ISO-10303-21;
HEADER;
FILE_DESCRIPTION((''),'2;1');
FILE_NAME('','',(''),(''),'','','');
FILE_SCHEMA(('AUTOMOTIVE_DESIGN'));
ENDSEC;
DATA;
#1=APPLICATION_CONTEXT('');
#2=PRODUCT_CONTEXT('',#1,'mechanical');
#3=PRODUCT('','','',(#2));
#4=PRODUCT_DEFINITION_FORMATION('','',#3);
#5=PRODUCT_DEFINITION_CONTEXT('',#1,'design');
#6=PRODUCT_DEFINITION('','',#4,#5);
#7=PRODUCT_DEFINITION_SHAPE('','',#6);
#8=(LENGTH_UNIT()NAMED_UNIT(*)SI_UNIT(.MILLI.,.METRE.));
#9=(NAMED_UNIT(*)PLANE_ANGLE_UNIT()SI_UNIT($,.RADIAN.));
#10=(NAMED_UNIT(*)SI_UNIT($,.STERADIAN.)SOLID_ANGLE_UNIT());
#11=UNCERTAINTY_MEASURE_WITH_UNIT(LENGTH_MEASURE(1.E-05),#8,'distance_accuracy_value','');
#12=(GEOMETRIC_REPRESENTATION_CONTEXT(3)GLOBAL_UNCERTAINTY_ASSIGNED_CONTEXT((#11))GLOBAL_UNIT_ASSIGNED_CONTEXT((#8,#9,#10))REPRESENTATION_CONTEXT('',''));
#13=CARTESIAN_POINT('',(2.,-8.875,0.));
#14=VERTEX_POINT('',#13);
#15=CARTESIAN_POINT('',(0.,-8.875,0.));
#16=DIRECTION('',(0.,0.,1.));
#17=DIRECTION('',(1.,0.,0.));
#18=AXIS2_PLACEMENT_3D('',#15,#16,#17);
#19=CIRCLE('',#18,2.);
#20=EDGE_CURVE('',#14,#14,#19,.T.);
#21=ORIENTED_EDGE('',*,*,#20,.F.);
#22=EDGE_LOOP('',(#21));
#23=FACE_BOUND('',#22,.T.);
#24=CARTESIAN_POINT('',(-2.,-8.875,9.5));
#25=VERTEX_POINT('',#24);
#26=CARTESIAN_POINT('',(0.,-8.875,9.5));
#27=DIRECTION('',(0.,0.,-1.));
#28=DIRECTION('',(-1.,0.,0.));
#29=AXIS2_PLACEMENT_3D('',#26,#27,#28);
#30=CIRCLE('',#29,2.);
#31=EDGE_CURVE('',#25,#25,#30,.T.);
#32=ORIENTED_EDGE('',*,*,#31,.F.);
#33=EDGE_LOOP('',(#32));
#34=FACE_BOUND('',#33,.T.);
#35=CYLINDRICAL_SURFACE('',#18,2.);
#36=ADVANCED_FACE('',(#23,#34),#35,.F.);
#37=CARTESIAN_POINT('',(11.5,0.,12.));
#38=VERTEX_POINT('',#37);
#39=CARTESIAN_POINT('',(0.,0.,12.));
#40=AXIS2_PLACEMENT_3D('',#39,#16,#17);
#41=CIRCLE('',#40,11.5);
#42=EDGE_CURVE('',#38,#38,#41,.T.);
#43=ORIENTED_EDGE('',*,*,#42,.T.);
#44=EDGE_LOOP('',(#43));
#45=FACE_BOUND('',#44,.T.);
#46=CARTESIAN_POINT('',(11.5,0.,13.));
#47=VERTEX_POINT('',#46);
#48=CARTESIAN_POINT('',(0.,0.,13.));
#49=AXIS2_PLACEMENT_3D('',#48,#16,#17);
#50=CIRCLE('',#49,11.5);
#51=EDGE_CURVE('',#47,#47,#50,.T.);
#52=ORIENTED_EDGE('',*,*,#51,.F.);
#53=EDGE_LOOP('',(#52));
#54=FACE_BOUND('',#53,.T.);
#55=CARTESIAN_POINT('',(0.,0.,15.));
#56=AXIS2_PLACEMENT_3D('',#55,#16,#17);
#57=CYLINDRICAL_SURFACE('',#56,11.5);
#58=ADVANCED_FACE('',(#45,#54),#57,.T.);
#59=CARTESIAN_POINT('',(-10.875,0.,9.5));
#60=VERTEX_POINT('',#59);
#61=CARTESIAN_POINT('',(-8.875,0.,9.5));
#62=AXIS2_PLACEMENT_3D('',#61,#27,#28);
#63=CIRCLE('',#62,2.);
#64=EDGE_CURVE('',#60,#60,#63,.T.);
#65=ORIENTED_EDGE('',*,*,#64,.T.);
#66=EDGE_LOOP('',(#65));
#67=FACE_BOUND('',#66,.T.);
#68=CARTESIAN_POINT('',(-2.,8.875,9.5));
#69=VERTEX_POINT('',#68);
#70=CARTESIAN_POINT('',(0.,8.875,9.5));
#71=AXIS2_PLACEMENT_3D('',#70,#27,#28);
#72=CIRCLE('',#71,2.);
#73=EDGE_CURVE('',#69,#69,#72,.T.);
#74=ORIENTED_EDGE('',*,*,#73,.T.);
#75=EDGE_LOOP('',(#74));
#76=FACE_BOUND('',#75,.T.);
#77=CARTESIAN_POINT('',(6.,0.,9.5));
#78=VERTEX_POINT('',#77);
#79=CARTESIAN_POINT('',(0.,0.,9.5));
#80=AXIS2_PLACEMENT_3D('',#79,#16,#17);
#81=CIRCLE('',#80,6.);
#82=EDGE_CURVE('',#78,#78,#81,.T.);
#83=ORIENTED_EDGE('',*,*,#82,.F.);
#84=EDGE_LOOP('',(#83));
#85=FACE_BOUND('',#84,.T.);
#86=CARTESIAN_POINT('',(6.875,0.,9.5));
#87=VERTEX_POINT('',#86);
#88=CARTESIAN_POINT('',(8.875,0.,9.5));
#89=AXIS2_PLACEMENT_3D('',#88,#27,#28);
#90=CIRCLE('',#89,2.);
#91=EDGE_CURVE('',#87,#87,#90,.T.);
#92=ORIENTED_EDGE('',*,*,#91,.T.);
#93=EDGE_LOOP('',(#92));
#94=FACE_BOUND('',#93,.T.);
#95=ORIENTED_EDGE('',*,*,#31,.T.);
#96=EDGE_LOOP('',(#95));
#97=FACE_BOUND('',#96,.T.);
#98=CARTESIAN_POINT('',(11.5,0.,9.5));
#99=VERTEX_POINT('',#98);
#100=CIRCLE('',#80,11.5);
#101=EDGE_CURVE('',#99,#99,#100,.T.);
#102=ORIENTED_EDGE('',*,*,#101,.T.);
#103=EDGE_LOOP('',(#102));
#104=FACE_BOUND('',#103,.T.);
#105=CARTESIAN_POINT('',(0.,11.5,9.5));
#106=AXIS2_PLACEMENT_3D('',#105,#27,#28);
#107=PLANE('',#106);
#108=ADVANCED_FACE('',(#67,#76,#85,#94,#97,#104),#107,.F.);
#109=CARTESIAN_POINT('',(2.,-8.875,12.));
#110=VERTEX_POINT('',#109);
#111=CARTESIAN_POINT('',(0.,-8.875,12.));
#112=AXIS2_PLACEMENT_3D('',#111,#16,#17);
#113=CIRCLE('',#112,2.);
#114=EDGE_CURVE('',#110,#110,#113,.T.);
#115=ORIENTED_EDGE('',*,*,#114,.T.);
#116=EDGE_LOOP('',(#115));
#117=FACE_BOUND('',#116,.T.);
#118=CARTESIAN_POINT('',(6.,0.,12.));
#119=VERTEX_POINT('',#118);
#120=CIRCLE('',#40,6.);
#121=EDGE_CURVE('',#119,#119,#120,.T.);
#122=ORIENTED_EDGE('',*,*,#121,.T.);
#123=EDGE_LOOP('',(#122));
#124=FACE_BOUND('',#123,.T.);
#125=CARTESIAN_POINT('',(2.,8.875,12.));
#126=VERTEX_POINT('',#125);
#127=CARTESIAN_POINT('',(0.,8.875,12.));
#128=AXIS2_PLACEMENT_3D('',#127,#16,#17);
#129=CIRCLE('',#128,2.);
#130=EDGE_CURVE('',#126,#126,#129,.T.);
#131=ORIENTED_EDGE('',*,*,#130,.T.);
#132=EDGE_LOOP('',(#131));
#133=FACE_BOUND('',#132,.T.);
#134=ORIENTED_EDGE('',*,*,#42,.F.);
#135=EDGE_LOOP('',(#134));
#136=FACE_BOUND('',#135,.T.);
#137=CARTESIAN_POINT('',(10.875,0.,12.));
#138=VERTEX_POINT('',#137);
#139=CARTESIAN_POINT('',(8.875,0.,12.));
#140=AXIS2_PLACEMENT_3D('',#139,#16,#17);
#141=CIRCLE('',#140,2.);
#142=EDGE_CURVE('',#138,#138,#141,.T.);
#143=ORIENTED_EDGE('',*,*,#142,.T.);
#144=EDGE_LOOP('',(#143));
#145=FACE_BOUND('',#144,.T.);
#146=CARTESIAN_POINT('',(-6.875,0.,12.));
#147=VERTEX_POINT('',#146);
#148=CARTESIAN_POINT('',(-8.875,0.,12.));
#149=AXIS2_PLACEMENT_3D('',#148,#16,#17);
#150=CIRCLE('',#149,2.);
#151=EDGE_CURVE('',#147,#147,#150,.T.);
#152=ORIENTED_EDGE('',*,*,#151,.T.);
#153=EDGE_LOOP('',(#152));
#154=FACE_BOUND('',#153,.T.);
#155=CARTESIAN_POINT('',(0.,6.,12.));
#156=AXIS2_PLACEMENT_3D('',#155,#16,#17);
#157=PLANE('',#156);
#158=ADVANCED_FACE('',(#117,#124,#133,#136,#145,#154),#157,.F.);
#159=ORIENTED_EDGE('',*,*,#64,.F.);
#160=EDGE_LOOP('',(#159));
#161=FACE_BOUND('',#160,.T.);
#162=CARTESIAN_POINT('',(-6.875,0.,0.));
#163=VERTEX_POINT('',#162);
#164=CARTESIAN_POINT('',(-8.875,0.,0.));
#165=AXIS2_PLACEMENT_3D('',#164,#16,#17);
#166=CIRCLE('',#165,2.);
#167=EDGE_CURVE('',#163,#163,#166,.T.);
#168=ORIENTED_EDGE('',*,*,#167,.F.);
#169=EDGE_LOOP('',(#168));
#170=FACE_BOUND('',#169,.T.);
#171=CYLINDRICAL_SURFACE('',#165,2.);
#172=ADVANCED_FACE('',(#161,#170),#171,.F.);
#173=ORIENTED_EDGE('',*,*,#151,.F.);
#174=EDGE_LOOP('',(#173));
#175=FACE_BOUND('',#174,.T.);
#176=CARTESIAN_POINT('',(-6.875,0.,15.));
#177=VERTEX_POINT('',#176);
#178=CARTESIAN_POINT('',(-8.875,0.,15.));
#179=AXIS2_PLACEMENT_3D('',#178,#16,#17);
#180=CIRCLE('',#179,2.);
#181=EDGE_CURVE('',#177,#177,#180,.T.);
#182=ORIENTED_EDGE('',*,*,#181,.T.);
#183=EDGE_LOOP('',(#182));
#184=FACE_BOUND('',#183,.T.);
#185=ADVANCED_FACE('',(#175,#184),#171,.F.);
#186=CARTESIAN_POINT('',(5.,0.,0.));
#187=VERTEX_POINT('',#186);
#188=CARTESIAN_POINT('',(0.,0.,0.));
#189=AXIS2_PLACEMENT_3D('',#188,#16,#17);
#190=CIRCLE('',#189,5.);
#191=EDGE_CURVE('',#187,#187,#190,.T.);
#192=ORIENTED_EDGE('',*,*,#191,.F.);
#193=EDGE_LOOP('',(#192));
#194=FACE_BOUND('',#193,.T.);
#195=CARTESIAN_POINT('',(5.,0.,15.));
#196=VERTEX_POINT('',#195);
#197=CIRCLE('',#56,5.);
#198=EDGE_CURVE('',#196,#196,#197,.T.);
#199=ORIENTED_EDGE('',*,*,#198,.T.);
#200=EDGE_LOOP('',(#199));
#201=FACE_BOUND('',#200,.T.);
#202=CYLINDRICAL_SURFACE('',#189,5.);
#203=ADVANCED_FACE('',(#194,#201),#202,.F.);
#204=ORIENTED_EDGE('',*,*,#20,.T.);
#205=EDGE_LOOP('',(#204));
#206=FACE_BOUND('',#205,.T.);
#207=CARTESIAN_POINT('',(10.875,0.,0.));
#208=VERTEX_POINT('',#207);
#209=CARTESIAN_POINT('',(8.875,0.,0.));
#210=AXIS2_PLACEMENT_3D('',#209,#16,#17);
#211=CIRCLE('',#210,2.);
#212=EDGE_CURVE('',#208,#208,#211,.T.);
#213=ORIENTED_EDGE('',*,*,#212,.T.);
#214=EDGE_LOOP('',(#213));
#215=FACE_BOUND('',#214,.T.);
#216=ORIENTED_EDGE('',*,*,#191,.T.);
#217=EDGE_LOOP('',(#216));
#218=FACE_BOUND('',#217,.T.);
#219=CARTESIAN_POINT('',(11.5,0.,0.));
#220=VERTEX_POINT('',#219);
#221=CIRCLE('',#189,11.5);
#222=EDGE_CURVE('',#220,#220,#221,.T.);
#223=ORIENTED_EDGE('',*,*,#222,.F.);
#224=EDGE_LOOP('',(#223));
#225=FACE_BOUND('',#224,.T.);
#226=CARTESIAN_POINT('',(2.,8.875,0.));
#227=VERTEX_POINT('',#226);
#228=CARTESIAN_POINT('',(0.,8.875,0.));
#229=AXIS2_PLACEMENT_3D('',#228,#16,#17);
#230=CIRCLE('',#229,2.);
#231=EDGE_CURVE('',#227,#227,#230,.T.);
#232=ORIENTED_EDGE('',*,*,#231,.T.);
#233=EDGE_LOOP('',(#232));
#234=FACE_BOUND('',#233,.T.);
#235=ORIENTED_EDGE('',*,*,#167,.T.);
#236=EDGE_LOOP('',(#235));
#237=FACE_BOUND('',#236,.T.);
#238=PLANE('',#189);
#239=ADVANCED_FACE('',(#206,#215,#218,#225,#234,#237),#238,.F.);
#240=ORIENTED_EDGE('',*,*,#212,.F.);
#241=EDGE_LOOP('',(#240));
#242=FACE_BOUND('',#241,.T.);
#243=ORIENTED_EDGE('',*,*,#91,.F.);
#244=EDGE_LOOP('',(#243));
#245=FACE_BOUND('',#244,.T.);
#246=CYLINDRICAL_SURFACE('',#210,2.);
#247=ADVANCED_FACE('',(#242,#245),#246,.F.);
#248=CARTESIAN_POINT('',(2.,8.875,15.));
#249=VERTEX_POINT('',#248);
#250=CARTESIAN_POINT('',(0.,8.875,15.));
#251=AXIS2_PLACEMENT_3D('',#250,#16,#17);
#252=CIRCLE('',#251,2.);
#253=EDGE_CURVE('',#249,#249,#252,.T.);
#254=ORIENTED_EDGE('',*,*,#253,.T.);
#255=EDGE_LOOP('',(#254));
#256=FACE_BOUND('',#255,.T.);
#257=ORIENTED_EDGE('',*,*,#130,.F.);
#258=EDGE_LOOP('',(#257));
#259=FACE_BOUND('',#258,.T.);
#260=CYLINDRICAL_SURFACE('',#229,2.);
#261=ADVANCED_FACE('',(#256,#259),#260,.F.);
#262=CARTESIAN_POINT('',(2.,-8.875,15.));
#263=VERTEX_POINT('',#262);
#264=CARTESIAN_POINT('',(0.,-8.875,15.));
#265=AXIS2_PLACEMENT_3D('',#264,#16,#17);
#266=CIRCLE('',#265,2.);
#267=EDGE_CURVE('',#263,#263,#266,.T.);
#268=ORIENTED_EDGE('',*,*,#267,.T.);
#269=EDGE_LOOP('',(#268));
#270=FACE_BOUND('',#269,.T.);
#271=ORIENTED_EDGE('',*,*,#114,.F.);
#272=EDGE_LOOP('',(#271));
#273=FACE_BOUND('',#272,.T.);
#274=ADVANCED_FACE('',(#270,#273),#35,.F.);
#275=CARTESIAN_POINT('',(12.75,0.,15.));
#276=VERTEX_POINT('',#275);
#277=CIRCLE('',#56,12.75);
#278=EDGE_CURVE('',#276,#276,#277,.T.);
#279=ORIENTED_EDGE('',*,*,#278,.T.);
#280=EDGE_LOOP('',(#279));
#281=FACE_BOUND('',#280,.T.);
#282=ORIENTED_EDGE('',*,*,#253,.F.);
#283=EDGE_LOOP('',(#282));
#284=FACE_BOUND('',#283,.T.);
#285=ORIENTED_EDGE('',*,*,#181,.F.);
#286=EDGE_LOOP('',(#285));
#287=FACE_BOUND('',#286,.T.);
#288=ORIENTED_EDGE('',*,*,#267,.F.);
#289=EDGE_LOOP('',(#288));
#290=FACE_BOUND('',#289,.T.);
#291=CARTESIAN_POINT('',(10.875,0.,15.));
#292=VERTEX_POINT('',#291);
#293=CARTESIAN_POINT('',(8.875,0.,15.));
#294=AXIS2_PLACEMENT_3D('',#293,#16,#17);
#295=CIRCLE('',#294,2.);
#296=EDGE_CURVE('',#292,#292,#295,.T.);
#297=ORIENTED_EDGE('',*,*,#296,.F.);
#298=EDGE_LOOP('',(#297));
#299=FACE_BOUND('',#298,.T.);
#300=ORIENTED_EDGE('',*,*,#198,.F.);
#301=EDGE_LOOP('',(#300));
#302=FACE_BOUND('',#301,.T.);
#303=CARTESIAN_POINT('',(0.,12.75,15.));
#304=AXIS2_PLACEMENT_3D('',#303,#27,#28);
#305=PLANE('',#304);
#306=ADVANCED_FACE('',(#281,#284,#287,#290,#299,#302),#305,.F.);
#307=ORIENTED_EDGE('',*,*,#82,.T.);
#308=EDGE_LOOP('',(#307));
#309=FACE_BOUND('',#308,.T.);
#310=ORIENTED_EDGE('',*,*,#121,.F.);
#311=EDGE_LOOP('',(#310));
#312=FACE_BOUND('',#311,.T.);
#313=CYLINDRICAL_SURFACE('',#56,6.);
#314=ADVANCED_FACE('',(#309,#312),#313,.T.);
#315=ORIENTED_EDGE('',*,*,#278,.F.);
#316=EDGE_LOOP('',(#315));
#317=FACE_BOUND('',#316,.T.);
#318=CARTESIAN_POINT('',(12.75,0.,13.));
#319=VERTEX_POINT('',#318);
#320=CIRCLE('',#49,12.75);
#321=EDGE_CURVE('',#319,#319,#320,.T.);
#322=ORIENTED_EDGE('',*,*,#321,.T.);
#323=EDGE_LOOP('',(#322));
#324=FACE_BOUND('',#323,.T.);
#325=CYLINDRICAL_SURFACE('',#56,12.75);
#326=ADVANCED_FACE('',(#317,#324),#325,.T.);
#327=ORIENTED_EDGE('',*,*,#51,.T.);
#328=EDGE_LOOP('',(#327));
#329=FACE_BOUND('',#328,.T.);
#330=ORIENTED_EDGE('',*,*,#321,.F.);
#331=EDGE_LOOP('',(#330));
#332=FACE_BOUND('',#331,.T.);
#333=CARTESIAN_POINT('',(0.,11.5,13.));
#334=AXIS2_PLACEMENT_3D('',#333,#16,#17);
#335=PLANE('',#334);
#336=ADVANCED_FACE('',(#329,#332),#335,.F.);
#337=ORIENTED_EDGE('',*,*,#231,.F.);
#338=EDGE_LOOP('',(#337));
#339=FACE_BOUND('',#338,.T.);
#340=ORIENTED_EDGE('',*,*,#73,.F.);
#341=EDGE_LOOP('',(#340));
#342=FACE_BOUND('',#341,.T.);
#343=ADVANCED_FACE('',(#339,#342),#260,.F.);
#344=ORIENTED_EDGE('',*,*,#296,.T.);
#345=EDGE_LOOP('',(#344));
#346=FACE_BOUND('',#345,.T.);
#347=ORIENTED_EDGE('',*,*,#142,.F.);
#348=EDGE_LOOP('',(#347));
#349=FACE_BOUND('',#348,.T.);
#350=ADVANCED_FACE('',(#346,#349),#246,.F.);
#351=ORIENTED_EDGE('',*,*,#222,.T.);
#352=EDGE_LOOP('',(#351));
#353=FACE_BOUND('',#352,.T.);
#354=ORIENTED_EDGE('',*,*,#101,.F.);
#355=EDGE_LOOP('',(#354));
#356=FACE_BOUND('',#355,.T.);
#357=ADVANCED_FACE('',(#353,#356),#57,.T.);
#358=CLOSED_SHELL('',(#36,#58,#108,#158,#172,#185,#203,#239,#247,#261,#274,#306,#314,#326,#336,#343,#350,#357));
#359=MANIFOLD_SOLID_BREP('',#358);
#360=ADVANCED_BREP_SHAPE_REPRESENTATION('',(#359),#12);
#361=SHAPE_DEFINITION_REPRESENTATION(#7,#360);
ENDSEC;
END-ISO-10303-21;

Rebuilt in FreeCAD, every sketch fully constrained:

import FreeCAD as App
import Part
import Sketcher
from FreeCAD import Vector
Q = App.Units.Quantity


def add_polygon(sketch, points):
    """Adds a closed chain of lines whose ends are joined by coincident constraints."""
    first, n = sketch.GeometryCount, len(points)
    for a, b in zip(points, points[1:] + points[:1]):
        sketch.addGeometry(Part.LineSegment(App.Vector(*a, 0), App.Vector(*b, 0)), False)
    for i in range(n):
        sketch.addConstraint(Sketcher.Constraint("Coincident", first + i, 2, first + (i + 1) % n, 1))

doc = App.newDocument("Part")
params = doc.addObject("Spreadsheet::Sheet", "Params")
for row, (alias, value) in enumerate([
    ("sketch1_height", "1 mm"),
    ("sketch1_height2", "2 mm"),
    ("sketch1_height3", "15 mm"),
    ("sketch1_width", "11.5 mm"),
    ("sketch1_width2", "5.5 mm"),
    ("revolution_angle", "360 deg"),
    ("sketch2_diameter", "10 mm"),
    ("sketch3_diameter", "4 mm"),
], start=1):
    params.set(f"A{row}", alias)
    params.set(f"B{row}", "=" + value)
    params.setAlias(f"B{row}", alias)

body = doc.addObject("PartDesign::Body", "Body")

sketch1 = doc.addObject("Sketcher::SketchObject", "Sketch")
body.addObject(sketch1)
sketch1.AttachmentSupport = (doc.YZ_Plane, [""])
sketch1.MapMode = "FlatFace"
add_polygon(sketch1, [(0, 0), (11.5, 0), (11.5, 9.5), (6, 9.5), (6, 12), (11.5, 12), (11.5, 13), (12.8, 13), (12.8, 15), (0, 15)])
sketch1.addConstraint(Sketcher.Constraint("Horizontal", 0))
sketch1.addConstraint(Sketcher.Constraint("Vertical", 1))
sketch1.addConstraint(Sketcher.Constraint("Horizontal", 2))
sketch1.addConstraint(Sketcher.Constraint("Vertical", 3))
sketch1.addConstraint(Sketcher.Constraint("Horizontal", 4))
sketch1.addConstraint(Sketcher.Constraint("Vertical", 5))
sketch1.addConstraint(Sketcher.Constraint("Horizontal", 6))
sketch1.addConstraint(Sketcher.Constraint("Vertical", 7))
sketch1.addConstraint(Sketcher.Constraint("Horizontal", 8))
sketch1.addConstraint(Sketcher.Constraint("Vertical", 9))
sketch1.addConstraint(Sketcher.Constraint("Coincident", 9, 2, -1, 1))
sketch1.addConstraint(Sketcher.Constraint("Vertical", 1, 2, 4, 2))
sketch1.addConstraint(Sketcher.Constraint("DistanceY", 5, 1, 5, 2, Q("1 mm")))
sketch1.addConstraint(Sketcher.Constraint("DistanceY", 7, 1, 7, 2, Q("2 mm")))
sketch1.addConstraint(Sketcher.Constraint("DistanceY", 9, 2, 9, 1, Q("15 mm")))
sketch1.addConstraint(Sketcher.Constraint("DistanceX", 0, 1, 0, 2, Q("11.5 mm")))
sketch1.addConstraint(Sketcher.Constraint("DistanceX", 2, 2, 2, 1, Q("5.5 mm")))
sketch1.addConstraint(Sketcher.Constraint("DistanceY", 1, 1, 1, 2, Q("9.5 mm")))
sketch1.addConstraint(Sketcher.Constraint("DistanceX", 6, 1, 6, 2, Q("1.25 mm")))
sketch1.setExpression("Constraints[22]", "Params.sketch1_height")
sketch1.setExpression("Constraints[23]", "Params.sketch1_height2")
sketch1.setExpression("Constraints[24]", "Params.sketch1_height3")
sketch1.setExpression("Constraints[25]", "Params.sketch1_width")
sketch1.setExpression("Constraints[26]", "Params.sketch1_width2")
revolution = doc.addObject("PartDesign::Revolution", "Revolution")
body.addObject(revolution)
revolution.Profile = sketch1
revolution.ReferenceAxis = (sketch1, ["V_Axis"])
revolution.setExpression("Angle", "Params.revolution_angle")

sketch2 = doc.addObject("Sketcher::SketchObject", "Sketch001")
body.addObject(sketch2)
sketch2.AttachmentSupport = (doc.XY_Plane, [""])
sketch2.MapMode = "FlatFace"
sketch2.AttachmentOffset = App.Placement(Vector(0, 0, 15), App.Rotation())
sketch2.addGeometry(Part.Circle(Vector(0, 0, 0), Vector(0, 0, 1), 5), False)
sketch2.addConstraint(Sketcher.Constraint("Coincident", 0, 3, -1, 1))
sketch2.addConstraint(Sketcher.Constraint("Diameter", 0, Q("10 mm")))
sketch2.setExpression("Constraints[1]", "Params.sketch2_diameter")
pocket1 = doc.addObject("PartDesign::Pocket", "Pocket")
body.addObject(pocket1)
pocket1.Profile = sketch2
pocket1.Type = "ThroughAll"

sketch3 = doc.addObject("Sketcher::SketchObject", "Sketch002")
body.addObject(sketch3)
sketch3.AttachmentSupport = (doc.XY_Plane, [""])
sketch3.MapMode = "FlatFace"
sketch3.AttachmentOffset = App.Placement(Vector(0, 0, 15), App.Rotation())
sketch3.addGeometry(Part.Circle(Vector(0, 8.9, 0), Vector(0, 0, 1), 2), False)
sketch3.addGeometry(Part.Circle(Vector(8.9, 0, 0), Vector(0, 0, 1), 2), False)
sketch3.addGeometry(Part.Circle(Vector(0, -8.9, 0), Vector(0, 0, 1), 2), False)
sketch3.addGeometry(Part.Circle(Vector(-8.9, 0, 0), Vector(0, 0, 1), 2), False)
sketch3.addConstraint(Sketcher.Constraint("Equal", 0, 1))
sketch3.addConstraint(Sketcher.Constraint("Equal", 1, 2))
sketch3.addConstraint(Sketcher.Constraint("Equal", 2, 3))
sketch3.addConstraint(Sketcher.Constraint("Symmetric", 0, 3, 2, 3, -1, 1))
sketch3.addConstraint(Sketcher.Constraint("Symmetric", 1, 3, 3, 3, -1, 1))
sketch3.addConstraint(Sketcher.Constraint("PointOnObject", 0, 3, -2))
sketch3.addConstraint(Sketcher.Constraint("PointOnObject", 1, 3, -1))
sketch3.addConstraint(Sketcher.Constraint("Diameter", 0, Q("4 mm")))
sketch3.addConstraint(Sketcher.Constraint("DistanceY", 2, 3, 0, 3, Q("17.75 mm")))
sketch3.addConstraint(Sketcher.Constraint("DistanceX", 3, 3, 1, 3, Q("17.75 mm")))
sketch3.setExpression("Constraints[7]", "Params.sketch3_diameter")
pocket2 = doc.addObject("PartDesign::Pocket", "Pocket001")
body.addObject(pocket2)
pocket2.Profile = sketch3
pocket2.Type = "ThroughAll"

doc.recompute()
